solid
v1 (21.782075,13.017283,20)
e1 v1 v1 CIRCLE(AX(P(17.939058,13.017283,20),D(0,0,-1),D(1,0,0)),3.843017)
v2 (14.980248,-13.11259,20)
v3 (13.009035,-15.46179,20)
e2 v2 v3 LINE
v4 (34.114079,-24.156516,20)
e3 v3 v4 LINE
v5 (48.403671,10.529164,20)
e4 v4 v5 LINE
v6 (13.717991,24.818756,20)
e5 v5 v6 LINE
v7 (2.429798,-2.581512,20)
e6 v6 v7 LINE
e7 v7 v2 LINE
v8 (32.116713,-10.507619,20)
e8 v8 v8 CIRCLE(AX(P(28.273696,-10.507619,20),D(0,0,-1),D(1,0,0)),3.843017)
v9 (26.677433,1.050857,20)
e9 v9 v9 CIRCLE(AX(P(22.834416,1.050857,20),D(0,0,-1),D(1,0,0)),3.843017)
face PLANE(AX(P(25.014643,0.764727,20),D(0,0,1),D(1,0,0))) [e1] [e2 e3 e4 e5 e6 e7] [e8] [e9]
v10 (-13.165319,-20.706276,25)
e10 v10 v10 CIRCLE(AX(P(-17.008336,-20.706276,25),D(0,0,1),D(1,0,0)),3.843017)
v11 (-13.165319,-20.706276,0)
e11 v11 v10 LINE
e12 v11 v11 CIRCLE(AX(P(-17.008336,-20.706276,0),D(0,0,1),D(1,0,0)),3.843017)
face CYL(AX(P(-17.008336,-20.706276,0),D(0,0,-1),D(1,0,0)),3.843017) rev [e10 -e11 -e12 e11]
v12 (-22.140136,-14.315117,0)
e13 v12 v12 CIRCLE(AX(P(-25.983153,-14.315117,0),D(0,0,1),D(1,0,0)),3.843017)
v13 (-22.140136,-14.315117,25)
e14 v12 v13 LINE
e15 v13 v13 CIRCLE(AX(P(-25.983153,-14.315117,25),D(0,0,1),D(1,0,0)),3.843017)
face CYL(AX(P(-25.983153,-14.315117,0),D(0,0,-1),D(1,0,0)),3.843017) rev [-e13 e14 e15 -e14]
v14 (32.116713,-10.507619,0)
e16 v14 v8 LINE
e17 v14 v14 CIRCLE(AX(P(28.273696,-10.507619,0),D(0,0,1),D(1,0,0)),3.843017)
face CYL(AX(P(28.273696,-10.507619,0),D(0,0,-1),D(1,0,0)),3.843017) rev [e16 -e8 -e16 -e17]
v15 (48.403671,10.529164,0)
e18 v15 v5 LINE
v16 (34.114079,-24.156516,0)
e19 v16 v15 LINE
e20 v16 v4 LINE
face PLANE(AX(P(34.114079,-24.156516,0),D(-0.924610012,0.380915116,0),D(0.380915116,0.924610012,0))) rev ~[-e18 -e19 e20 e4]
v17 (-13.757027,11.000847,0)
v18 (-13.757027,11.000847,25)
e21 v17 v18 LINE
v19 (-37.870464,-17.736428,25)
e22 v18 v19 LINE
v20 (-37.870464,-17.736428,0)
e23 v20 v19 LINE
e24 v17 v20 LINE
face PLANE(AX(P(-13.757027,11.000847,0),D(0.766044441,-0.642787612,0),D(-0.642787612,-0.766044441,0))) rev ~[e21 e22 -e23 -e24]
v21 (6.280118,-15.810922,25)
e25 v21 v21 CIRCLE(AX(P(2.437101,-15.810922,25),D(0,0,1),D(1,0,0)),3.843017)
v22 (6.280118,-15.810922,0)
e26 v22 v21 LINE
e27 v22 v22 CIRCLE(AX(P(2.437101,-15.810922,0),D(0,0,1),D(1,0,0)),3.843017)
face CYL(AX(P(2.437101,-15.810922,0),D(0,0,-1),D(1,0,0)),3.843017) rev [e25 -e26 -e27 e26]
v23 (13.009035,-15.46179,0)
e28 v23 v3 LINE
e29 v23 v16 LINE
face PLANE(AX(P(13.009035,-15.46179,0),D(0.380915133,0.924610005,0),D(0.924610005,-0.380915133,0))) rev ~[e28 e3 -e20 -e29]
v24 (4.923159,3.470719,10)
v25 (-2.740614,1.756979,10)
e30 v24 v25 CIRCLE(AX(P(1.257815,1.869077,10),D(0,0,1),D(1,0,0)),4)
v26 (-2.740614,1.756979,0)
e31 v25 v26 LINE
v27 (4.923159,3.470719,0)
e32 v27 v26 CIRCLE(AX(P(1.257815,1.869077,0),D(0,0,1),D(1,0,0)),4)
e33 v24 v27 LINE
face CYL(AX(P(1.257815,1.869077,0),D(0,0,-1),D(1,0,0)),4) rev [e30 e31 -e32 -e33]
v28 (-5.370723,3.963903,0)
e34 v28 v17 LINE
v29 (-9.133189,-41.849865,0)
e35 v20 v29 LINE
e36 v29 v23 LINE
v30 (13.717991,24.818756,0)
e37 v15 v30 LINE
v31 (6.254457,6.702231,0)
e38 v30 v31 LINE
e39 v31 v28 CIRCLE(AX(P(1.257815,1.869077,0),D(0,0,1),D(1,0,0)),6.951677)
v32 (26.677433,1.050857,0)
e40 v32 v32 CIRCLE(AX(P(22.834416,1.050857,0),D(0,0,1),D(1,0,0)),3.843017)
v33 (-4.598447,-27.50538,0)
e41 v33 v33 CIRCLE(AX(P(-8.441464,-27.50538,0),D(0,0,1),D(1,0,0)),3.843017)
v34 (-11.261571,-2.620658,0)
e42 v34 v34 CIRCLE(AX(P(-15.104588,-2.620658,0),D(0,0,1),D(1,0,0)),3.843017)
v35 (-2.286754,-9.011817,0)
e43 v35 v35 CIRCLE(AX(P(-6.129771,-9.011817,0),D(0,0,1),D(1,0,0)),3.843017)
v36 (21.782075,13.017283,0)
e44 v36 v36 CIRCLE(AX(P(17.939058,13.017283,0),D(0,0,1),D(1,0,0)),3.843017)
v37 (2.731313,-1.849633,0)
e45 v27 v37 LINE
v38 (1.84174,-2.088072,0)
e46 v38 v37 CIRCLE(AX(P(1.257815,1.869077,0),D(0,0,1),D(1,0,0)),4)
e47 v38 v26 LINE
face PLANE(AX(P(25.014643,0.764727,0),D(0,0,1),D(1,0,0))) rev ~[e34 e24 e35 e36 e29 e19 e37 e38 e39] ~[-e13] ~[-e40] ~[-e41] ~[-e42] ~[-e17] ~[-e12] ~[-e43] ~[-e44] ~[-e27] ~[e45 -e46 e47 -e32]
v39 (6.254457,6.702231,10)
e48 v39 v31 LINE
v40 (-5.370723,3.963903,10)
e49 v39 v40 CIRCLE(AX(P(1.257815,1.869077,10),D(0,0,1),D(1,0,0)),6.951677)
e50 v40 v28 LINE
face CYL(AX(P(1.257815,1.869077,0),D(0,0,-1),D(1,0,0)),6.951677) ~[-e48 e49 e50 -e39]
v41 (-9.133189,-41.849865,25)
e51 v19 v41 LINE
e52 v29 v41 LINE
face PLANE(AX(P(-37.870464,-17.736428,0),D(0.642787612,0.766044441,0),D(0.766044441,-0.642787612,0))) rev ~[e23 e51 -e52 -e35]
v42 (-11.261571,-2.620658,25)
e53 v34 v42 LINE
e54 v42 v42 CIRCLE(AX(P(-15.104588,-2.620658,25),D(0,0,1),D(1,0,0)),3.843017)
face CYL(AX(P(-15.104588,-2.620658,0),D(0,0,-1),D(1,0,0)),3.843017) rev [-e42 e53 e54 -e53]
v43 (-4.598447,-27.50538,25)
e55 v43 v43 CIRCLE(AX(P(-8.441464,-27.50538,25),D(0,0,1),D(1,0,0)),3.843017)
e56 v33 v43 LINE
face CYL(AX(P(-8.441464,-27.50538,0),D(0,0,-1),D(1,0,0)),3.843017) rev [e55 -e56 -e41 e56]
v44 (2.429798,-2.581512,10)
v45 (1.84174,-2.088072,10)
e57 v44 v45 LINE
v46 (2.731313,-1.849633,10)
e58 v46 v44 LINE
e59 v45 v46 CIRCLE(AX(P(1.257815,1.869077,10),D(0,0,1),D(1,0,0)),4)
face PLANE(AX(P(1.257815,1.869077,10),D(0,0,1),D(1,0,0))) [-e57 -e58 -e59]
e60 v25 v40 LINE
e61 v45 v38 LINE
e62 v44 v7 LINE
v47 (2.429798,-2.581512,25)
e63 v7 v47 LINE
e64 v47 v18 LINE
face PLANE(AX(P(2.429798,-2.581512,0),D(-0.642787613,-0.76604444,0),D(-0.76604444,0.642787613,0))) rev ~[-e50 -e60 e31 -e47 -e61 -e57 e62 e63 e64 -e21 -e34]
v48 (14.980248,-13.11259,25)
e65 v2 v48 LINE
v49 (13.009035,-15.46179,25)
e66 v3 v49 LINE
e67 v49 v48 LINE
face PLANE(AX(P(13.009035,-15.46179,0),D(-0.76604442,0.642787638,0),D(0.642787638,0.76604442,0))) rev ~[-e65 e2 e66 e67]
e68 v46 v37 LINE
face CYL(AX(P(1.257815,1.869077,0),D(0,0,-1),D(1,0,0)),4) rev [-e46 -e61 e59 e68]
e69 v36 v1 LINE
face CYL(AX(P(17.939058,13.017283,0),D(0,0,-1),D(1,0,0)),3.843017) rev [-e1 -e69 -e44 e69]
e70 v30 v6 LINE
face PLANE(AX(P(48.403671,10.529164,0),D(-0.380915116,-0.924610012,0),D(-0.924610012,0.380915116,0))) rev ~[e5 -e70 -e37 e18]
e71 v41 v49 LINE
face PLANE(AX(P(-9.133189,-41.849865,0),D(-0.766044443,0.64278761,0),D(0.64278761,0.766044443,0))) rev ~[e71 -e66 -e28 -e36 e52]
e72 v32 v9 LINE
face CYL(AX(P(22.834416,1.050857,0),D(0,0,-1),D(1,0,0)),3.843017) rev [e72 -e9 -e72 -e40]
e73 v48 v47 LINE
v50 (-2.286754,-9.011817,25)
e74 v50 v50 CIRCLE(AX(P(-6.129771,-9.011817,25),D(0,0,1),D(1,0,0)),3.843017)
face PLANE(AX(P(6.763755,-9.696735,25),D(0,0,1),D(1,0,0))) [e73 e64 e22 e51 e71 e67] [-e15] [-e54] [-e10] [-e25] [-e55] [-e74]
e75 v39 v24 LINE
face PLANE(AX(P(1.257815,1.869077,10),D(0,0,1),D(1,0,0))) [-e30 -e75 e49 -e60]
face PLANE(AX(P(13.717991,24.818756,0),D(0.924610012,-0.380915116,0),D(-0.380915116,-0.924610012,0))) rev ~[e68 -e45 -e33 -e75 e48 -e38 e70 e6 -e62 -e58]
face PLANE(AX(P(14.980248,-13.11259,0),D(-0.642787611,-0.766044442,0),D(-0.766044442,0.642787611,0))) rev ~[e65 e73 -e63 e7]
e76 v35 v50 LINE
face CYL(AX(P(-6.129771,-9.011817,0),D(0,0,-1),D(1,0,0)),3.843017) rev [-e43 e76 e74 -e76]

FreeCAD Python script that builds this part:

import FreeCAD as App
import Part
import Sketcher
Q = App.Units.Quantity


def add_polygon(sketch, points):
    """Adds a closed chain of lines whose ends are joined by coincident constraints."""
    first, n = sketch.GeometryCount, len(points)
    for a, b in zip(points, points[1:] + points[:1]):
        sketch.addGeometry(Part.LineSegment(App.Vector(*a, 0), App.Vector(*b, 0)), False)
    for i in range(n):
        sketch.addConstraint(Sketcher.Constraint("Coincident", first + i, 2, first + (i + 1) % n, 1))

doc = App.newDocument("Part")
body = doc.addObject("PartDesign::Body", "Body")

# Sketch on XY plane
sketch1 = doc.addObject("Sketcher::SketchObject", "Sketch")
body.addObject(sketch1)
sketch1.AttachmentSupport = (doc.XY_Plane, [""])
sketch1.MapMode = "FlatFace"
add_polygon(sketch1, [(14.980248, -13.11259), (2.429798, -2.581512), (-13.757027, 11.000847), (-37.870464, -17.736428), (-9.133189, -41.849865), (13.009035, -15.46179)])  # lines 0-5
sketch1.addConstraint(Sketcher.Constraint("Parallel", 0, 1))
sketch1.addConstraint(Sketcher.Constraint("Perpendicular", 1, 2))
sketch1.addConstraint(Sketcher.Constraint("Perpendicular", 2, 3))
sketch1.addConstraint(Sketcher.Constraint("Perpendicular", 3, 4))
sketch1.addConstraint(Sketcher.Constraint("Parallel", 4, 5))
sketch1.addConstraint(Sketcher.Constraint("Equal", 2, 3))
sketch1.addConstraint(Sketcher.Constraint("Angle", 0, Q("140 deg")))
sketch1.addConstraint(Sketcher.Constraint("Distance", 1, Q("21.130399 mm")))
sketch1.addConstraint(Sketcher.Constraint("DistanceX", 2, 2, 4, 2, Q("50.879499 mm")))
sketch1.addConstraint(Sketcher.Constraint("DistanceY", 4, 2, 5, 2, Q("2.3492 mm")))
sketch1.addConstraint(Sketcher.Constraint("DistanceY", 0, 2, -1, 1, Q("2.581512 mm")))
sketch1.addConstraint(Sketcher.Constraint("DistanceX", 3, 2, -1, 1, Q("9.133189 mm")))
pad1 = doc.addObject("PartDesign::Pad", "Pad")
body.addObject(pad1)
pad1.Profile = sketch1
pad1.Length = 25

# Sketch on XY plane
sketch2 = doc.addObject("Sketcher::SketchObject", "Sketch001")
body.addObject(sketch2)
sketch2.AttachmentSupport = (doc.XY_Plane, [""])
sketch2.MapMode = "FlatFace"
add_polygon(sketch2, [(13.717991, 24.818756), (2.429798, -2.581512), (14.980248, -13.11259), (13.009035, -15.46179), (34.114079, -24.156516), (48.403671, 10.529164)])  # lines 0-5
sketch2.addConstraint(Sketcher.Constraint("Perpendicular", 1, 2))
sketch2.addConstraint(Sketcher.Constraint("Perpendicular", 0, 3))
sketch2.addConstraint(Sketcher.Constraint("Perpendicular", 3, 4))
sketch2.addConstraint(Sketcher.Constraint("Perpendicular", 4, 5))
sketch2.addConstraint(Sketcher.Constraint("Equal", 4, 5))
sketch2.addConstraint(Sketcher.Constraint("Angle", 1, Q("-40 deg")))
sketch2.addConstraint(Sketcher.Constraint("DistanceY", 2, 2, 1, 2, Q("2.3492 mm")))
sketch2.addConstraint(Sketcher.Constraint("Distance", 1, Q("16.383449 mm")))
sketch2.addConstraint(Sketcher.Constraint("Distance", 4, Q("37.513849 mm")))
sketch2.addConstraint(Sketcher.Constraint("DistanceY", 0, 2, -1, 1, Q("2.581512 mm")))
sketch2.addConstraint(Sketcher.Constraint("DistanceX", -1, 1, 3, 2, Q("34.114079 mm")))
sketch2.addConstraint(Sketcher.Constraint("DistanceX", -1, 1, 4, 2, Q("48.403671 mm")))
pad2 = doc.addObject("PartDesign::Pad", "Pad001")
body.addObject(pad2)
pad2.Profile = sketch2
pad2.Length = 20

# Sketch on XY plane
sketch3 = doc.addObject("Sketcher::SketchObject", "Sketch002")
body.addObject(sketch3)
sketch3.AttachmentSupport = (doc.XY_Plane, [""])
sketch3.MapMode = "FlatFace"
sketch3.addGeometry(Part.Circle(App.Vector(-15.104588, -2.620658, 0), App.Vector(0, 0, 1), 3.843017), False)
sketch3.addGeometry(Part.Circle(App.Vector(-25.983153, -14.315117, 0), App.Vector(0, 0, 1), 3.843017), False)
sketch3.addGeometry(Part.Circle(App.Vector(-6.129771, -9.011817, 0), App.Vector(0, 0, 1), 3.843017), False)
sketch3.addGeometry(Part.Circle(App.Vector(-17.008336, -20.706276, 0), App.Vector(0, 0, 1), 3.843017), False)
sketch3.addGeometry(Part.Circle(App.Vector(2.437101, -15.810922, 0), App.Vector(0, 0, 1), 3.843017), False)
sketch3.addGeometry(Part.Circle(App.Vector(-8.441464, -27.50538, 0), App.Vector(0, 0, 1), 3.843017), False)
sketch3.addGeometry(Part.Circle(App.Vector(17.939058, 13.017283, 0), App.Vector(0, 0, 1), 3.843017), False)
sketch3.addGeometry(Part.Circle(App.Vector(22.834416, 1.050857, 0), App.Vector(0, 0, 1), 3.843017), False)
sketch3.addGeometry(Part.Circle(App.Vector(28.273696, -10.507619, 0), App.Vector(0, 0, 1), 3.843017), False)
sketch3.addConstraint(Sketcher.Constraint("Equal", 0, 1))
sketch3.addConstraint(Sketcher.Constraint("Equal", 1, 2))
sketch3.addConstraint(Sketcher.Constraint("Equal", 2, 3))
sketch3.addConstraint(Sketcher.Constraint("Equal", 3, 4))
sketch3.addConstraint(Sketcher.Constraint("Equal", 4, 5))
sketch3.addConstraint(Sketcher.Constraint("Equal", 5, 6))
sketch3.addConstraint(Sketcher.Constraint("Equal", 6, 7))
sketch3.addConstraint(Sketcher.Constraint("Equal", 7, 8))
sketch3.addConstraint(Sketcher.Constraint("Diameter", 0, Q("7.686034 mm")))
sketch3.addConstraint(Sketcher.Constraint("DistanceX", -1, 1, 4, 3, Q("2.437101 mm")))
sketch3.addConstraint(Sketcher.Constraint("DistanceY", 1, 3, 2, 3, Q("5.3033 mm")))
sketch3.addConstraint(Sketcher.Constraint("DistanceY", 2, 3, 6, 3, Q("22.0291 mm")))
sketch3.addConstraint(Sketcher.Constraint("DistanceY", 8, 3, 2, 3, Q("1.495802 mm")))
sketch3.addConstraint(Sketcher.Constraint("DistanceY", 0, 3, -1, 1, Q("2.620658 mm")))
sketch3.addConstraint(Sketcher.Constraint("DistanceX", 2, 3, -1, 1, Q("6.129771 mm")))
sketch3.addConstraint(Sketcher.Constraint("DistanceY", 5, 3, -1, 1, Q("27.50538 mm")))
sketch3.addConstraint(Sketcher.Constraint("DistanceY", 8, 3, -1, 1, Q("10.507619 mm")))
sketch3.addConstraint(Sketcher.Constraint("DistanceY", 3, 3, 1, 3, Q("6.391159 mm")))
sketch3.addConstraint(Sketcher.Constraint("DistanceX", 3, 3, 0, 3, Q("1.903748 mm")))
sketch3.addConstraint(Sketcher.Constraint("DistanceX", 0, 3, 4, 3, Q("17.541689 mm")))
sketch3.addConstraint(Sketcher.Constraint("DistanceX", 1, 3, 5, 3, Q("17.541689 mm")))
sketch3.addConstraint(Sketcher.Constraint("DistanceX", 2, 3, 6, 3, Q("24.068829 mm")))
sketch3.addConstraint(Sketcher.Constraint("DistanceX", 5, 3, 6, 3, Q("26.380522 mm")))
sketch3.addConstraint(Sketcher.Constraint("DistanceX", 6, 3, 7, 3, Q("4.895358 mm")))
sketch3.addConstraint(Sketcher.Constraint("DistanceY", 4, 3, 7, 3, Q("16.861779 mm")))
sketch3.addConstraint(Sketcher.Constraint("DistanceX", 7, 3, 8, 3, Q("5.43928 mm")))
sketch3.addConstraint(Sketcher.Constraint("DistanceY", 4, 3, -1, 1, Q("15.810922 mm")))
pocket1 = doc.addObject("PartDesign::Pocket", "Pocket")
body.addObject(pocket1)
pocket1.Profile = sketch3
pocket1.Length = 25
pocket1.Reversed = True

# Sketch on XY plane
sketch4 = doc.addObject("Sketcher::SketchObject", "Sketch003")
body.addObject(sketch4)
sketch4.AttachmentSupport = (doc.XY_Plane, [""])
sketch4.MapMode = "FlatFace"
sketch4.addGeometry(Part.Circle(App.Vector(1.257815, 1.869077, 0), App.Vector(0, 0, 1), 6.951677), False)
sketch4.addGeometry(Part.Circle(App.Vector(1.257815, 1.869077, 0), App.Vector(0, 0, 1), 4), False)
sketch4.addConstraint(Sketcher.Constraint("Coincident", 1, 3, 0, 3))
sketch4.addConstraint(Sketcher.Constraint("Diameter", 1, Q("8 mm")))
sketch4.addConstraint(Sketcher.Constraint("Diameter", 0, Q("13.903354 mm")))
sketch4.addConstraint(Sketcher.Constraint("DistanceX", -1, 1, 0, 3, Q("1.257815 mm")))
sketch4.addConstraint(Sketcher.Constraint("DistanceY", -1, 1, 0, 3, Q("1.869077 mm")))
pad3 = doc.addObject("PartDesign::Pad", "Pad002")
body.addObject(pad3)
pad3.Profile = sketch4
pad3.Length = 10

doc.recompute()
